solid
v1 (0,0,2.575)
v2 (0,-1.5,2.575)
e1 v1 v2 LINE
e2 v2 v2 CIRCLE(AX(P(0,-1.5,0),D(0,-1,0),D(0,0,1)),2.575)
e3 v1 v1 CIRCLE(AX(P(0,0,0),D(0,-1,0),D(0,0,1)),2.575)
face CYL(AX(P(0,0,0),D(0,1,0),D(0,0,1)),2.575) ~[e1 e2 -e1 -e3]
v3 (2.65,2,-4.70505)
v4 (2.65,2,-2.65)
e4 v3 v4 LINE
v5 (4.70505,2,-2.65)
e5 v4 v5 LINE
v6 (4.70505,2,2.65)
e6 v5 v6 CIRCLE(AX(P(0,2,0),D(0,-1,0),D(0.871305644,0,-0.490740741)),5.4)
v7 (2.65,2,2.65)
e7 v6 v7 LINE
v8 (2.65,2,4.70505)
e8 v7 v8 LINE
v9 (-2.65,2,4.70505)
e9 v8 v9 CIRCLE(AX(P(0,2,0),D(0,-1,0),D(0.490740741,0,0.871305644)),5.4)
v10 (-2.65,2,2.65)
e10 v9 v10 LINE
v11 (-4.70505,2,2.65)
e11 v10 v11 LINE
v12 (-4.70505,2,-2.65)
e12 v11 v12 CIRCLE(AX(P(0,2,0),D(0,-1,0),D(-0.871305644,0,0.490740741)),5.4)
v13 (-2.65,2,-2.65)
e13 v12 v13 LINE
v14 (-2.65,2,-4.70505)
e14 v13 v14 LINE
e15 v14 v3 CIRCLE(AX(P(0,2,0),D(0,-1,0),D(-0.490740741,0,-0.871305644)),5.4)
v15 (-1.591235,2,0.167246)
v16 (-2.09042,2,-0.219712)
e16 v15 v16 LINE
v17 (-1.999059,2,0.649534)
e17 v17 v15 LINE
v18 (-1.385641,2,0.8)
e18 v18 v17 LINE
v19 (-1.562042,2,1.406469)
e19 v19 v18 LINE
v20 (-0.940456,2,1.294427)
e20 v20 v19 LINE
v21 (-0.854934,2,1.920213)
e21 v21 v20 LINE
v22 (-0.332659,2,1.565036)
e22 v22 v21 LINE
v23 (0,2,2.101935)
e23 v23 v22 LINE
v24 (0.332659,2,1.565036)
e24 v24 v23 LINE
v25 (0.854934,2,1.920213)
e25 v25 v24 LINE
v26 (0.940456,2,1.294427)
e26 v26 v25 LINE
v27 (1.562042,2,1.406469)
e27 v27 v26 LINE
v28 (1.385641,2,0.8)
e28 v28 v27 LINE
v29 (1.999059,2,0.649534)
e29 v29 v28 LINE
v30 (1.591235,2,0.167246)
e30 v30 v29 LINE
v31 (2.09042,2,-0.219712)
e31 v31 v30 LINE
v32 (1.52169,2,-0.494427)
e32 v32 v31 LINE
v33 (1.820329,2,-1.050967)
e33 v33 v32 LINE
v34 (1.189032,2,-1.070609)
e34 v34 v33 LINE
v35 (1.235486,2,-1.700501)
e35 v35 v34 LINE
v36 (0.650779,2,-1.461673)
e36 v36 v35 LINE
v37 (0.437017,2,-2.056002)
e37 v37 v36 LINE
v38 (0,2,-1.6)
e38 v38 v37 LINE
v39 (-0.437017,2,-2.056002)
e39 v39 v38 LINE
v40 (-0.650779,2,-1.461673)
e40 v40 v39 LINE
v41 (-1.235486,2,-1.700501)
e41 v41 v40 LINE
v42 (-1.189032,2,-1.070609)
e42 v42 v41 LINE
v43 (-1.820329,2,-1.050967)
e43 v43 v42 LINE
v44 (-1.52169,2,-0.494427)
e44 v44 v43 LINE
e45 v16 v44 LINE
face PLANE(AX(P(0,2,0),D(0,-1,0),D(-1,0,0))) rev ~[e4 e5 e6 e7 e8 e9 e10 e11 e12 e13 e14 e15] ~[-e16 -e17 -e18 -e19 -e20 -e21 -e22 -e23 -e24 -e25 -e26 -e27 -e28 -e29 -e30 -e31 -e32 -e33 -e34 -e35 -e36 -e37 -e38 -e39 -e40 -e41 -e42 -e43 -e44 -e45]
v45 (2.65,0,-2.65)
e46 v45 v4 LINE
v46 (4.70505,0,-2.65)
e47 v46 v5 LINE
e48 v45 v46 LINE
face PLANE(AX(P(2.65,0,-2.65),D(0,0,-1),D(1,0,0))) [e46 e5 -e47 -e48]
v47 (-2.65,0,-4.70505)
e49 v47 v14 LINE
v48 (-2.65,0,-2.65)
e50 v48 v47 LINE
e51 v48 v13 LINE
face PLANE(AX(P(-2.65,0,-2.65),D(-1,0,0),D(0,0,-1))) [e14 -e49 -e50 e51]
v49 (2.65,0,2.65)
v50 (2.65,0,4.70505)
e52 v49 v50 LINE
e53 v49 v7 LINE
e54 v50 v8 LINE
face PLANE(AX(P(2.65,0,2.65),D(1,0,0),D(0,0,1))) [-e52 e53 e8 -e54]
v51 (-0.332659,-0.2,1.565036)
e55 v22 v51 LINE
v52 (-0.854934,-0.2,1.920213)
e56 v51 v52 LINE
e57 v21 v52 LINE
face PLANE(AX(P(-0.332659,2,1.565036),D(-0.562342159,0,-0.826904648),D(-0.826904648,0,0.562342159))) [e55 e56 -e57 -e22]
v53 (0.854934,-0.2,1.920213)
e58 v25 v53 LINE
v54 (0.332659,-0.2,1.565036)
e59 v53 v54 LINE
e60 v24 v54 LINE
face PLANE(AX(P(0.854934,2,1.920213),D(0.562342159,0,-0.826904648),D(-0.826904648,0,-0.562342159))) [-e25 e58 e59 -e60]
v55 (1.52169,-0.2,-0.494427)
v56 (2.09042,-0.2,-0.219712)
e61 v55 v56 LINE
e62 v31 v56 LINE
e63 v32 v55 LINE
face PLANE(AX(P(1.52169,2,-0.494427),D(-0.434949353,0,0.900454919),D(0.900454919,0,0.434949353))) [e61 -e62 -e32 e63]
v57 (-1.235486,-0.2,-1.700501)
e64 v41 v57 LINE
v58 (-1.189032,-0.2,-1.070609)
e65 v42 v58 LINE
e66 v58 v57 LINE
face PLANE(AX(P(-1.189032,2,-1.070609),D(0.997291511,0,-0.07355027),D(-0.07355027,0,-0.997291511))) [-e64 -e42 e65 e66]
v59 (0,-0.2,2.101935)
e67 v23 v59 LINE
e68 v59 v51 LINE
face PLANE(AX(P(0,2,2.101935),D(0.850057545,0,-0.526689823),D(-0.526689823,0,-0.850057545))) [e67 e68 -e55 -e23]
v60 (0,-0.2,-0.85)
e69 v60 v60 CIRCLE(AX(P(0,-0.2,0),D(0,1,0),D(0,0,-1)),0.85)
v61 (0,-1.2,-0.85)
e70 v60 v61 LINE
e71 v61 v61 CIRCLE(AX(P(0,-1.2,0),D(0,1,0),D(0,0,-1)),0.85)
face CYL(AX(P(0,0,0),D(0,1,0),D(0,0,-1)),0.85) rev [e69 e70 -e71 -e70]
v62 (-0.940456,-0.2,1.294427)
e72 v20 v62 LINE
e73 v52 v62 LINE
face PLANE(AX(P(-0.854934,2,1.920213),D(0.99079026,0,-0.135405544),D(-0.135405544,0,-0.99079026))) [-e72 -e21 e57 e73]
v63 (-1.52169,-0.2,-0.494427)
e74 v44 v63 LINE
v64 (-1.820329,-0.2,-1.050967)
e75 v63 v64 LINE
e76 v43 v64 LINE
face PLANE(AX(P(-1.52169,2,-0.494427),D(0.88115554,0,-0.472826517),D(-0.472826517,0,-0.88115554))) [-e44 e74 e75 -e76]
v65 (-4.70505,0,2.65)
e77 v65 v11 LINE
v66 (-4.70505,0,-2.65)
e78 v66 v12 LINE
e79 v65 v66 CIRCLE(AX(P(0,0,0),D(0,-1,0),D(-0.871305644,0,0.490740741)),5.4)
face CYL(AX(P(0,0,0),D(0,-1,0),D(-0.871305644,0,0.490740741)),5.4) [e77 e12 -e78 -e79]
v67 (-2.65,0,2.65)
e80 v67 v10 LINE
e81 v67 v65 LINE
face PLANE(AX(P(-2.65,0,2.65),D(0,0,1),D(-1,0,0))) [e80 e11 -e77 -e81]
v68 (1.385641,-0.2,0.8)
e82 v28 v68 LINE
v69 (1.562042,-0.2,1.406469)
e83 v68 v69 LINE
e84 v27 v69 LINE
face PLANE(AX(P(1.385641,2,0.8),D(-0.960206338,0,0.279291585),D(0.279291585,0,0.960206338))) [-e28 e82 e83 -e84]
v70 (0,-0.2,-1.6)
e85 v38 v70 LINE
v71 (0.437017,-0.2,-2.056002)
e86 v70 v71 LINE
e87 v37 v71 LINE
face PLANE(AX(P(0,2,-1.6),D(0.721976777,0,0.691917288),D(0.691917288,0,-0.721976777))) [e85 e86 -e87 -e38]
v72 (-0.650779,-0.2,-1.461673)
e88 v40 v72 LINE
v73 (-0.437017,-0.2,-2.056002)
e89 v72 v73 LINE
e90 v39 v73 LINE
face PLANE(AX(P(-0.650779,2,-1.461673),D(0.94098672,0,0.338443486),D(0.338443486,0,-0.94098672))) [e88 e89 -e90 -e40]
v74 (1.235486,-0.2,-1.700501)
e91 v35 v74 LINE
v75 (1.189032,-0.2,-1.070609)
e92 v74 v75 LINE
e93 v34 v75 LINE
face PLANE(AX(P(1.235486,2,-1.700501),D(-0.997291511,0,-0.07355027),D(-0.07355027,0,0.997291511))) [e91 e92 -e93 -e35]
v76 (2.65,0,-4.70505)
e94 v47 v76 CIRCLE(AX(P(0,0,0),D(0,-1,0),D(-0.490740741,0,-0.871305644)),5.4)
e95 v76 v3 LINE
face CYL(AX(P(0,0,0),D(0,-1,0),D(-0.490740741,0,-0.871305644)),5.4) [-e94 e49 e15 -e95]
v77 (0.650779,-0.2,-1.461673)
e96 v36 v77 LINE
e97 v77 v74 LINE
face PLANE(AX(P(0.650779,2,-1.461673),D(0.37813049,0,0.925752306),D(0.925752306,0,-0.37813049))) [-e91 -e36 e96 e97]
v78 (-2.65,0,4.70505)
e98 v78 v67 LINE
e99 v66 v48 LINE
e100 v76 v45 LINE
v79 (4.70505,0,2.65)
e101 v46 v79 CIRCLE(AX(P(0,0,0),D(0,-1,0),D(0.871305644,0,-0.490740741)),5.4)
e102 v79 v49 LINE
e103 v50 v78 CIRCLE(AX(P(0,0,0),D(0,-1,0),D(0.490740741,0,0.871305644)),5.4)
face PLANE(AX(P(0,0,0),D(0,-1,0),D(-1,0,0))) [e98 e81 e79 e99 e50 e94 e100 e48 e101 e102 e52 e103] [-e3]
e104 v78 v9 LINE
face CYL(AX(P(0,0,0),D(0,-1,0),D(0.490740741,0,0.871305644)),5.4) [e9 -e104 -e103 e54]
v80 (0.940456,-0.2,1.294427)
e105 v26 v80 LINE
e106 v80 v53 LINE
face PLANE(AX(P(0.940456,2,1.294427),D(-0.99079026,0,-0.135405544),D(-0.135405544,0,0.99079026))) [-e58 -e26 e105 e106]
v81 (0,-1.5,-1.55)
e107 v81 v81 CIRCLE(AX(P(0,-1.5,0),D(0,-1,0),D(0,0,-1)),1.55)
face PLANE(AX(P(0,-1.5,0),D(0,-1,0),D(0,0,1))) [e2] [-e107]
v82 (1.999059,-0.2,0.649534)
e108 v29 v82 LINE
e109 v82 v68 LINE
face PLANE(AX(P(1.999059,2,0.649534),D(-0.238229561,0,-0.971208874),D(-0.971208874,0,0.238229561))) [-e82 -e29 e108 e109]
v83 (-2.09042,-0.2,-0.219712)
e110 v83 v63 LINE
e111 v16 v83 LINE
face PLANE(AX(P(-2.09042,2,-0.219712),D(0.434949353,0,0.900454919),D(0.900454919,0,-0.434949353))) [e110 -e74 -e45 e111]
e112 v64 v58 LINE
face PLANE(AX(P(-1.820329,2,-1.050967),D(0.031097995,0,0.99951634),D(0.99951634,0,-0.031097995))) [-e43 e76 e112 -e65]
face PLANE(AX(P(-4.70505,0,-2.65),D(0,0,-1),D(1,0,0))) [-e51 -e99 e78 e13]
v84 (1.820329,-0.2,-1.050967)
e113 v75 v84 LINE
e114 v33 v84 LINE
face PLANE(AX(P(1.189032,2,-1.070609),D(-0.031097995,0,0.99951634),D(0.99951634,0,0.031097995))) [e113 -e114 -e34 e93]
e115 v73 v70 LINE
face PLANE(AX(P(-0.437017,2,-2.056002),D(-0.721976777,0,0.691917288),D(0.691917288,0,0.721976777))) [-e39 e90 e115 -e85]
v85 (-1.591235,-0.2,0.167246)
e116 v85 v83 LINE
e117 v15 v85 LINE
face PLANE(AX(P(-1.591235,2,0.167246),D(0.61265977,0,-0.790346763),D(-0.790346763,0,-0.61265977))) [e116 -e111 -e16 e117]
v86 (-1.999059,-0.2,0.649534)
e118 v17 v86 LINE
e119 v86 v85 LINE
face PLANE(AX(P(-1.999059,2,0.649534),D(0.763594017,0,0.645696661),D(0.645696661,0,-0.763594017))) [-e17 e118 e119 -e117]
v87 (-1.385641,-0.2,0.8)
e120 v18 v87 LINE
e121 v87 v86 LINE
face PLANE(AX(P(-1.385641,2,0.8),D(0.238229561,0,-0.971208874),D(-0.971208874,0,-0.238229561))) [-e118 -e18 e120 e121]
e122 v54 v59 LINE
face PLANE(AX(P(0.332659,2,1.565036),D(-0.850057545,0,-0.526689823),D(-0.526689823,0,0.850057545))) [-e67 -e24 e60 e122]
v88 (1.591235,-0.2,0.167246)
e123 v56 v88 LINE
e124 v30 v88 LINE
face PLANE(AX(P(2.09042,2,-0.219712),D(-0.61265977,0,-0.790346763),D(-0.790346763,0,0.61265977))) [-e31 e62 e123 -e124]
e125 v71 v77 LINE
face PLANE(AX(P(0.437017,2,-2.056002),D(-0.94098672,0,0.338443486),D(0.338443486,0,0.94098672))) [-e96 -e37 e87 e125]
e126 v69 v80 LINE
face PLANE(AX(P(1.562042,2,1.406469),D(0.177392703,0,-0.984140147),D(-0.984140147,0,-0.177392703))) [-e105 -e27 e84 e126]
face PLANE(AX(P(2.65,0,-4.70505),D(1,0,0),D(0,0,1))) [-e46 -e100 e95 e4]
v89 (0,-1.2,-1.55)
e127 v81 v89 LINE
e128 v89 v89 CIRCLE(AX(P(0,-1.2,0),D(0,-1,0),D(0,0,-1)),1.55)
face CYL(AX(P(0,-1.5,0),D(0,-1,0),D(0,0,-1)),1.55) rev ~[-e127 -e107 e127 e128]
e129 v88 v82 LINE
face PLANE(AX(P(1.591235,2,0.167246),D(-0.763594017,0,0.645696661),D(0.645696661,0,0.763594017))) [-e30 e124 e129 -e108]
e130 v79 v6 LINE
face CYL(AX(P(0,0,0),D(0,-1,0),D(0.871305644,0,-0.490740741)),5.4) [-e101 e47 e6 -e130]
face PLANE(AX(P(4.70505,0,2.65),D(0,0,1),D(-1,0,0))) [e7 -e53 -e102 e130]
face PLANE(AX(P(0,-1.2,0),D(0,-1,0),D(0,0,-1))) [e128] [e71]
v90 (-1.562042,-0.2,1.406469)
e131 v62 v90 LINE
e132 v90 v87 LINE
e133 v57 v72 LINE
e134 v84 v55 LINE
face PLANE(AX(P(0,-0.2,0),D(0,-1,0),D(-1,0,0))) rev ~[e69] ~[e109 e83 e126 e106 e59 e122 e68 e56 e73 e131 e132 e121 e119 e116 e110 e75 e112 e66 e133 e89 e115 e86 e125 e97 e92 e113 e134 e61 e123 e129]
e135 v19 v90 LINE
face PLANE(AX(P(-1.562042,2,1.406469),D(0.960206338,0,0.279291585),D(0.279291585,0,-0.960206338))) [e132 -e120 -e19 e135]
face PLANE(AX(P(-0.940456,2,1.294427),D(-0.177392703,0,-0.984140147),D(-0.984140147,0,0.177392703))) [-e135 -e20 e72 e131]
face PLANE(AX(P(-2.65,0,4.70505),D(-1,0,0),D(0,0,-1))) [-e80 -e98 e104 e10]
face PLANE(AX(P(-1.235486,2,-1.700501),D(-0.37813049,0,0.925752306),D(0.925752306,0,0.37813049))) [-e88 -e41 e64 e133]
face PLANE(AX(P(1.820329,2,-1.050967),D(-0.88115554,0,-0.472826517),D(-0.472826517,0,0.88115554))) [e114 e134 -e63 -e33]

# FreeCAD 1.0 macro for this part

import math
import FreeCAD as App
import Part
import Sketcher

V = App.Vector


def add_polygon(sketch, points):
    """Adds a closed chain of lines whose ends are joined by coincident constraints."""
    first, n = sketch.GeometryCount, len(points)
    for a, b in zip(points, points[1:] + points[:1]):
        sketch.addGeometry(Part.LineSegment(App.Vector(*a, 0), App.Vector(*b, 0)), False)
    for i in range(n):
        sketch.addConstraint(Sketcher.Constraint("Coincident", first + i, 2, first + (i + 1) % n, 1))

doc = App.newDocument("Part")
body = doc.addObject("PartDesign::Body", "Body")

sketch1 = body.newObject("Sketcher::SketchObject", "Sketch")
sketch1.AttachmentSupport = (doc.getObject("XZ_Plane"), [""])
sketch1.MapMode = "FlatFace"
sketch1.addGeometry([
    Part.LineSegment(V(2.6, -2.6, 0), V(2.6, -4.7, 0)),
    Part.ArcOfCircle(Part.Circle(V(0, 0, 0), V(0, 0, 1), 5.4), math.radians(-119), math.radians(-61)),
    Part.LineSegment(V(-2.6, -4.7, 0), V(-2.6, -2.6, 0)),
    Part.LineSegment(V(-2.6, -2.6, 0), V(-4.7, -2.6, 0)),
    Part.ArcOfCircle(Part.Circle(V(0, 0, 0), V(0, 0, 1), 5.4), math.radians(151), math.radians(209)),
    Part.LineSegment(V(-4.7, 2.6, 0), V(-2.6, 2.6, 0)),
    Part.LineSegment(V(-2.6, 2.6, 0), V(-2.6, 4.7, 0)),
    Part.ArcOfCircle(Part.Circle(V(0, 0, 0), V(0, 0, 1), 5.4), math.radians(61), math.radians(119)),
    Part.LineSegment(V(2.6, 4.7, 0), V(2.6, 2.6, 0)),
    Part.LineSegment(V(2.6, 2.6, 0), V(4.7, 2.6, 0)),
    Part.ArcOfCircle(Part.Circle(V(0, 0, 0), V(0, 0, 1), 5.4), math.radians(-29), math.radians(29)),
    Part.LineSegment(V(4.7, -2.6, 0), V(2.6, -2.6, 0)),
], False)
sketch1.addConstraint([
    Sketcher.Constraint("Coincident", 0, 2, 1, 2),
    Sketcher.Constraint("Coincident", 1, 1, 2, 1),
    Sketcher.Constraint("Coincident", 2, 2, 3, 1),
    Sketcher.Constraint("Coincident", 3, 2, 4, 2),
    Sketcher.Constraint("Coincident", 4, 1, 5, 1),
    Sketcher.Constraint("Coincident", 5, 2, 6, 1),
    Sketcher.Constraint("Coincident", 6, 2, 7, 2),
    Sketcher.Constraint("Coincident", 7, 1, 8, 1),
    Sketcher.Constraint("Coincident", 8, 2, 9, 1),
    Sketcher.Constraint("Coincident", 9, 2, 10, 2),
    Sketcher.Constraint("Coincident", 10, 1, 11, 1),
    Sketcher.Constraint("Coincident", 11, 2, 0, 1),
    Sketcher.Constraint("Vertical", 0),
    Sketcher.Constraint("Vertical", 2),
    Sketcher.Constraint("Horizontal", 3),
    Sketcher.Constraint("Horizontal", 5),
    Sketcher.Constraint("Vertical", 6),
    Sketcher.Constraint("Vertical", 8),
    Sketcher.Constraint("Horizontal", 9),
    Sketcher.Constraint("Horizontal", 11),
    Sketcher.Constraint("Coincident", 1, 3, -1, 1),
    Sketcher.Constraint("Coincident", 4, 3, -1, 1),
    Sketcher.Constraint("Coincident", 7, 3, -1, 1),
    Sketcher.Constraint("Coincident", 10, 3, -1, 1),
    Sketcher.Constraint("Equal", 1, 4),
    Sketcher.Constraint("Equal", 4, 7),
    Sketcher.Constraint("Equal", 7, 10),
    Sketcher.Constraint("Symmetric", 2, 2, 8, 2, -1, 1),
    Sketcher.Constraint("Symmetric", 5, 2, 11, 2, -1, 1),
    Sketcher.Constraint("Symmetric", 5, 2, 8, 2, -2),
    Sketcher.Constraint("Equal", 11, 0),
    Sketcher.Constraint("Radius", 1, 5.4),
    Sketcher.Constraint("DistanceX", 1, 1, 0, 2, 5.3),
])
pad1 = body.newObject("PartDesign::Pad", "Pad")
pad1.Profile = sketch1
pad1.Length = 2
pad1.Reversed = True

sketch2 = body.newObject("Sketcher::SketchObject", "Sketch001")
sketch2.AttachmentSupport = (doc.getObject("XZ_Plane"), [""])
sketch2.MapMode = "FlatFace"
sketch2.addGeometry([
    Part.Circle(V(0, 0, 0), V(0, 0, 1), 2.6),
    Part.Circle(V(0, 0, 0), V(0, 0, 1), 0.8),
], False)
sketch2.addConstraint([
    Sketcher.Constraint("Coincident", 0, 3, -1, 1),
    Sketcher.Constraint("Coincident", 1, 3, -1, 1),
    Sketcher.Constraint("Diameter", 1, 1.7),
    Sketcher.Constraint("Diameter", 0, 5.15),
])
pad2 = body.newObject("PartDesign::Pad", "Pad001")
pad2.Profile = sketch2
pad2.Length = 1.5

sketch3 = body.newObject("Sketcher::SketchObject", "Sketch002")
sketch3.AttachmentSupport = (doc.getObject("XZ_Plane"), [""])
sketch3.MapMode = "FlatFace"
sketch3.AttachmentOffset = App.Placement(V(0, 0, 1.5), App.Rotation())
sketch3.addGeometry(Part.Circle(V(0, 0, 0), V(0, 0, 1), 1.6), False)
sketch3.addConstraint([
    Sketcher.Constraint("Coincident", 0, 3, -1, 1),
    Sketcher.Constraint("Diameter", 0, 3.1),
])
pocket1 = body.newObject("PartDesign::Pocket", "Pocket")
pocket1.Profile = sketch3
pocket1.Length = 0.3

sketch4 = body.newObject("Sketcher::SketchObject", "Sketch003")
sketch4.AttachmentSupport = (doc.getObject("XZ_Plane"), [""])
sketch4.MapMode = "FlatFace"
sketch4.AttachmentOffset = App.Placement(V(0, 0, -2), App.Rotation())
add_polygon(sketch4, [(0.4, -2.1), (0, -1.6), (-0.4, -2.1), (-0.7, -1.5), (-1.2, -1.7), (-1.2, -1.1), (-1.8, -1.1), (-1.5, -0.5), (-2.1, -0.2), (-1.6, 0.2), (-2, 0.6), (-1.4, 0.8), (-1.6, 1.4), (-0.9, 1.3), (-0.9, 1.9), (-0.3, 1.6), (0, 2.1), (0.3, 1.6), (0.9, 1.9), (0.9, 1.3), (1.6, 1.4), (1.4, 0.8), (2, 0.6), (1.6, 0.2), (2.1, -0.2), (1.5, -0.5), (1.8, -1.1), (1.2, -1.1), (1.2, -1.7), (0.7, -1.5)])
sketch4.addConstraint([
    Sketcher.Constraint("Symmetric", 14, 2, 16, 2, -2),
    Sketcher.Constraint("Symmetric", 13, 2, 17, 2, -2),
    Sketcher.Constraint("Symmetric", 12, 2, 18, 2, -2),
    Sketcher.Constraint("Symmetric", 11, 2, 19, 2, -2),
    Sketcher.Constraint("Symmetric", 10, 2, 20, 2, -2),
    Sketcher.Constraint("Symmetric", 9, 2, 21, 2, -2),
    Sketcher.Constraint("Symmetric", 8, 2, 22, 2, -2),
    Sketcher.Constraint("Symmetric", 7, 2, 23, 2, -2),
    Sketcher.Constraint("Symmetric", 6, 2, 24, 2, -2),
    Sketcher.Constraint("Symmetric", 5, 2, 25, 2, -2),
    Sketcher.Constraint("Symmetric", 4, 2, 26, 2, -2),
    Sketcher.Constraint("Symmetric", 3, 2, 27, 2, -2),
    Sketcher.Constraint("Symmetric", 2, 2, 28, 2, -2),
    Sketcher.Constraint("Symmetric", 1, 2, 29, 2, -2),
    Sketcher.Constraint("PointOnObject", 0, 2, -2),
    Sketcher.Constraint("PointOnObject", 15, 2, -2),
    Sketcher.Constraint("Equal", 1, 2),
    Sketcher.Constraint("Equal", 2, 3),
    Sketcher.Constraint("Equal", 3, 4),
    Sketcher.Constraint("Equal", 4, 5),
    Sketcher.Constraint("Equal", 5, 6),
    Sketcher.Constraint("Equal", 6, 7),
    Sketcher.Constraint("Equal", 7, 8),
    Sketcher.Constraint("Equal", 8, 9),
    Sketcher.Constraint("Equal", 9, 10),
    Sketcher.Constraint("Equal", 10, 11),
    Sketcher.Constraint("Equal", 11, 12),
    Sketcher.Constraint("Equal", 12, 13),
    Sketcher.Constraint("Equal", 13, 14),
    Sketcher.Constraint("Equal", 14, 15),
    Sketcher.Constraint("DistanceY", 0, 2, -1, 1, 1.6),
    Sketcher.Constraint("DistanceY", -1, 1, 10, 2, 0.8),
    Sketcher.Constraint("DistanceY", 3, 2, -1, 1, 1.700501),
    Sketcher.Constraint("DistanceY", 1, 2, 3, 2, 0.355502),
    Sketcher.Constraint("DistanceY", 5, 2, 9, 2, 1.700501),
    Sketcher.Constraint("DistanceX", 11, 2, 10, 2, 0.176401),
    Sketcher.Constraint("DistanceX", 8, 2, 13, 2, 0.736301),
    Sketcher.Constraint("DistanceY", 14, 2, 15, 2, 0.536899),
    Sketcher.Constraint("DistanceX", 10, 2, 16, 2, 1.718299),
    Sketcher.Constraint("DistanceX", 16, 2, 21, 2, 1.6664),
    Sketcher.Constraint("DistanceX", 2, 2, -1, 1, 0.650779),
    Sketcher.Constraint("DistanceX", 4, 2, -1, 1, 1.189032),
    Sketcher.Constraint("DistanceY", 4, 2, -1, 1, 1.070609),
    Sketcher.Constraint("DistanceX", 6, 2, -1, 1, 1.52169),
    Sketcher.Constraint("DistanceX", 7, 2, -1, 1, 2.09042),
    Sketcher.Constraint("DistanceY", 12, 2, 11, 2, 0.112042),
])
pocket2 = body.newObject("PartDesign::Pocket", "Pocket001")
pocket2.Profile = sketch4
pocket2.Length = 2.2
pocket2.Reversed = True

doc.recompute()
